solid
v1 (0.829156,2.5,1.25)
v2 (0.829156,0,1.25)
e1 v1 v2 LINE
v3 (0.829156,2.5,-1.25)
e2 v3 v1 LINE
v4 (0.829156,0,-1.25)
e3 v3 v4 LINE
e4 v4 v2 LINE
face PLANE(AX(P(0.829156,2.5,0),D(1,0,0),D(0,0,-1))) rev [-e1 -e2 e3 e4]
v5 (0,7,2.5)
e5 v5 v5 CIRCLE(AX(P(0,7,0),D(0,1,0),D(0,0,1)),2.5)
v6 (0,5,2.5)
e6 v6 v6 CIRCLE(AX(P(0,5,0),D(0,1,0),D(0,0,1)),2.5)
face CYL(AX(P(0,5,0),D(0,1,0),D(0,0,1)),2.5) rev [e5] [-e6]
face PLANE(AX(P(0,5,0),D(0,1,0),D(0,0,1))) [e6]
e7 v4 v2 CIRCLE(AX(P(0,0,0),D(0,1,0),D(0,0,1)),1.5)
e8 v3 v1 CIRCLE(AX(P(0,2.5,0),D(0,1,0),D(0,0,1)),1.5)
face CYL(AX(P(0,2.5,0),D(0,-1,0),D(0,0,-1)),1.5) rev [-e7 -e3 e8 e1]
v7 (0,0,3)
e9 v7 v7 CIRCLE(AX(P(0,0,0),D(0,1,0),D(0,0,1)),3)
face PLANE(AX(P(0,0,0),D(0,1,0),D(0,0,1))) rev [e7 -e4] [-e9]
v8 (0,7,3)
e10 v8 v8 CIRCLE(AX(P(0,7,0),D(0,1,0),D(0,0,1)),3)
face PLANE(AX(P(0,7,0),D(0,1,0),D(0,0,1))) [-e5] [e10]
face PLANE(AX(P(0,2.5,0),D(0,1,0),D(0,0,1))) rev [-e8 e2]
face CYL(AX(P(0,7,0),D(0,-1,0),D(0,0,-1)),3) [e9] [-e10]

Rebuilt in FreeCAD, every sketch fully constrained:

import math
import FreeCAD as App
import Part
import Sketcher
from FreeCAD import Vector

doc = App.newDocument("Part")
params = doc.addObject("Spreadsheet::Sheet", "Params")
for row, (alias, value) in enumerate([
    ("sketch1_diameter", "6 mm"),
    ("pad1_length", "7 mm"),
    ("sketch2_radius", "1.5 mm"),
    ("sketch2_height", "2.5 mm"),
    ("pocket1_length", "2.5 mm"),
    ("sketch3_diameter", "5 mm"),
    ("pocket2_length", "2 mm"),
], start=1):
    params.set(f"A{row}", alias)
    params.set(f"B{row}", "=" + value)
    params.setAlias(f"B{row}", alias)

body = doc.addObject("PartDesign::Body", "Body")

# Sketch on XZ plane
sketch1 = body.newObject("Sketcher::SketchObject", "Sketch")
sketch1.AttachmentSupport = (doc.getObject("XZ_Plane"), [""])
sketch1.MapMode = "FlatFace"
sketch1.addGeometry(Part.Circle(Vector(0, 0, 0), Vector(0, 0, 1), 3), False)
sketch1.addConstraint([
    Sketcher.Constraint("Coincident", 0, 3, -1, 1),
    Sketcher.Constraint("Diameter", 0, 6.0),
])
sketch1.setExpression("Constraints[1]", "Params.sketch1_diameter")
pad1 = body.newObject("PartDesign::Pad", "Pad")
pad1.Profile = sketch1
pad1.setExpression("Length", "Params.pad1_length")
pad1.Reversed = True

# Sketch on XZ plane
sketch2 = body.newObject("Sketcher::SketchObject", "Sketch001")
sketch2.AttachmentSupport = (doc.getObject("XZ_Plane"), [""])
sketch2.MapMode = "FlatFace"
sketch2.addGeometry([
    Part.LineSegment(Vector(0.8, 1.2, 0), Vector(0.8, -1.2, 0)),
    Part.ArcOfCircle(Part.Circle(Vector(0, 0, 0), Vector(0, 0, 1), 1.5), math.radians(56), math.radians(304)),
], False)
sketch2.addConstraint([
    Sketcher.Constraint("Coincident", 0, 1, 1, 1),
    Sketcher.Constraint("Coincident", 1, 2, 0, 2),
    Sketcher.Constraint("Vertical", 0),
    Sketcher.Constraint("Coincident", 1, 3, -1, 1),
    Sketcher.Constraint("Radius", 1, 1.5),
    Sketcher.Constraint("DistanceY", 0, 2, 0, 1, 2.5),
])
sketch2.setExpression("Constraints[4]", "Params.sketch2_radius")
sketch2.setExpression("Constraints[5]", "Params.sketch2_height")
pocket1 = body.newObject("PartDesign::Pocket", "Pocket")
pocket1.Profile = sketch2
pocket1.setExpression("Length", "Params.pocket1_length")

# Sketch on XZ plane
sketch3 = body.newObject("Sketcher::SketchObject", "Sketch002")
sketch3.AttachmentSupport = (doc.getObject("XZ_Plane"), [""])
sketch3.MapMode = "FlatFace"
sketch3.AttachmentOffset = App.Placement(Vector(0, 0, -7), App.Rotation())
sketch3.addGeometry(Part.Circle(Vector(0, 0, 0), Vector(0, 0, 1), 2.5), False)
sketch3.addConstraint([
    Sketcher.Constraint("Coincident", 0, 3, -1, 1),
    Sketcher.Constraint("Diameter", 0, 5.0),
])
sketch3.setExpression("Constraints[1]", "Params.sketch3_diameter")
pocket2 = body.newObject("PartDesign::Pocket", "Pocket001")
pocket2.Profile = sketch3
pocket2.setExpression("Length", "Params.pocket2_length")
pocket2.Reversed = True

doc.recompute()
